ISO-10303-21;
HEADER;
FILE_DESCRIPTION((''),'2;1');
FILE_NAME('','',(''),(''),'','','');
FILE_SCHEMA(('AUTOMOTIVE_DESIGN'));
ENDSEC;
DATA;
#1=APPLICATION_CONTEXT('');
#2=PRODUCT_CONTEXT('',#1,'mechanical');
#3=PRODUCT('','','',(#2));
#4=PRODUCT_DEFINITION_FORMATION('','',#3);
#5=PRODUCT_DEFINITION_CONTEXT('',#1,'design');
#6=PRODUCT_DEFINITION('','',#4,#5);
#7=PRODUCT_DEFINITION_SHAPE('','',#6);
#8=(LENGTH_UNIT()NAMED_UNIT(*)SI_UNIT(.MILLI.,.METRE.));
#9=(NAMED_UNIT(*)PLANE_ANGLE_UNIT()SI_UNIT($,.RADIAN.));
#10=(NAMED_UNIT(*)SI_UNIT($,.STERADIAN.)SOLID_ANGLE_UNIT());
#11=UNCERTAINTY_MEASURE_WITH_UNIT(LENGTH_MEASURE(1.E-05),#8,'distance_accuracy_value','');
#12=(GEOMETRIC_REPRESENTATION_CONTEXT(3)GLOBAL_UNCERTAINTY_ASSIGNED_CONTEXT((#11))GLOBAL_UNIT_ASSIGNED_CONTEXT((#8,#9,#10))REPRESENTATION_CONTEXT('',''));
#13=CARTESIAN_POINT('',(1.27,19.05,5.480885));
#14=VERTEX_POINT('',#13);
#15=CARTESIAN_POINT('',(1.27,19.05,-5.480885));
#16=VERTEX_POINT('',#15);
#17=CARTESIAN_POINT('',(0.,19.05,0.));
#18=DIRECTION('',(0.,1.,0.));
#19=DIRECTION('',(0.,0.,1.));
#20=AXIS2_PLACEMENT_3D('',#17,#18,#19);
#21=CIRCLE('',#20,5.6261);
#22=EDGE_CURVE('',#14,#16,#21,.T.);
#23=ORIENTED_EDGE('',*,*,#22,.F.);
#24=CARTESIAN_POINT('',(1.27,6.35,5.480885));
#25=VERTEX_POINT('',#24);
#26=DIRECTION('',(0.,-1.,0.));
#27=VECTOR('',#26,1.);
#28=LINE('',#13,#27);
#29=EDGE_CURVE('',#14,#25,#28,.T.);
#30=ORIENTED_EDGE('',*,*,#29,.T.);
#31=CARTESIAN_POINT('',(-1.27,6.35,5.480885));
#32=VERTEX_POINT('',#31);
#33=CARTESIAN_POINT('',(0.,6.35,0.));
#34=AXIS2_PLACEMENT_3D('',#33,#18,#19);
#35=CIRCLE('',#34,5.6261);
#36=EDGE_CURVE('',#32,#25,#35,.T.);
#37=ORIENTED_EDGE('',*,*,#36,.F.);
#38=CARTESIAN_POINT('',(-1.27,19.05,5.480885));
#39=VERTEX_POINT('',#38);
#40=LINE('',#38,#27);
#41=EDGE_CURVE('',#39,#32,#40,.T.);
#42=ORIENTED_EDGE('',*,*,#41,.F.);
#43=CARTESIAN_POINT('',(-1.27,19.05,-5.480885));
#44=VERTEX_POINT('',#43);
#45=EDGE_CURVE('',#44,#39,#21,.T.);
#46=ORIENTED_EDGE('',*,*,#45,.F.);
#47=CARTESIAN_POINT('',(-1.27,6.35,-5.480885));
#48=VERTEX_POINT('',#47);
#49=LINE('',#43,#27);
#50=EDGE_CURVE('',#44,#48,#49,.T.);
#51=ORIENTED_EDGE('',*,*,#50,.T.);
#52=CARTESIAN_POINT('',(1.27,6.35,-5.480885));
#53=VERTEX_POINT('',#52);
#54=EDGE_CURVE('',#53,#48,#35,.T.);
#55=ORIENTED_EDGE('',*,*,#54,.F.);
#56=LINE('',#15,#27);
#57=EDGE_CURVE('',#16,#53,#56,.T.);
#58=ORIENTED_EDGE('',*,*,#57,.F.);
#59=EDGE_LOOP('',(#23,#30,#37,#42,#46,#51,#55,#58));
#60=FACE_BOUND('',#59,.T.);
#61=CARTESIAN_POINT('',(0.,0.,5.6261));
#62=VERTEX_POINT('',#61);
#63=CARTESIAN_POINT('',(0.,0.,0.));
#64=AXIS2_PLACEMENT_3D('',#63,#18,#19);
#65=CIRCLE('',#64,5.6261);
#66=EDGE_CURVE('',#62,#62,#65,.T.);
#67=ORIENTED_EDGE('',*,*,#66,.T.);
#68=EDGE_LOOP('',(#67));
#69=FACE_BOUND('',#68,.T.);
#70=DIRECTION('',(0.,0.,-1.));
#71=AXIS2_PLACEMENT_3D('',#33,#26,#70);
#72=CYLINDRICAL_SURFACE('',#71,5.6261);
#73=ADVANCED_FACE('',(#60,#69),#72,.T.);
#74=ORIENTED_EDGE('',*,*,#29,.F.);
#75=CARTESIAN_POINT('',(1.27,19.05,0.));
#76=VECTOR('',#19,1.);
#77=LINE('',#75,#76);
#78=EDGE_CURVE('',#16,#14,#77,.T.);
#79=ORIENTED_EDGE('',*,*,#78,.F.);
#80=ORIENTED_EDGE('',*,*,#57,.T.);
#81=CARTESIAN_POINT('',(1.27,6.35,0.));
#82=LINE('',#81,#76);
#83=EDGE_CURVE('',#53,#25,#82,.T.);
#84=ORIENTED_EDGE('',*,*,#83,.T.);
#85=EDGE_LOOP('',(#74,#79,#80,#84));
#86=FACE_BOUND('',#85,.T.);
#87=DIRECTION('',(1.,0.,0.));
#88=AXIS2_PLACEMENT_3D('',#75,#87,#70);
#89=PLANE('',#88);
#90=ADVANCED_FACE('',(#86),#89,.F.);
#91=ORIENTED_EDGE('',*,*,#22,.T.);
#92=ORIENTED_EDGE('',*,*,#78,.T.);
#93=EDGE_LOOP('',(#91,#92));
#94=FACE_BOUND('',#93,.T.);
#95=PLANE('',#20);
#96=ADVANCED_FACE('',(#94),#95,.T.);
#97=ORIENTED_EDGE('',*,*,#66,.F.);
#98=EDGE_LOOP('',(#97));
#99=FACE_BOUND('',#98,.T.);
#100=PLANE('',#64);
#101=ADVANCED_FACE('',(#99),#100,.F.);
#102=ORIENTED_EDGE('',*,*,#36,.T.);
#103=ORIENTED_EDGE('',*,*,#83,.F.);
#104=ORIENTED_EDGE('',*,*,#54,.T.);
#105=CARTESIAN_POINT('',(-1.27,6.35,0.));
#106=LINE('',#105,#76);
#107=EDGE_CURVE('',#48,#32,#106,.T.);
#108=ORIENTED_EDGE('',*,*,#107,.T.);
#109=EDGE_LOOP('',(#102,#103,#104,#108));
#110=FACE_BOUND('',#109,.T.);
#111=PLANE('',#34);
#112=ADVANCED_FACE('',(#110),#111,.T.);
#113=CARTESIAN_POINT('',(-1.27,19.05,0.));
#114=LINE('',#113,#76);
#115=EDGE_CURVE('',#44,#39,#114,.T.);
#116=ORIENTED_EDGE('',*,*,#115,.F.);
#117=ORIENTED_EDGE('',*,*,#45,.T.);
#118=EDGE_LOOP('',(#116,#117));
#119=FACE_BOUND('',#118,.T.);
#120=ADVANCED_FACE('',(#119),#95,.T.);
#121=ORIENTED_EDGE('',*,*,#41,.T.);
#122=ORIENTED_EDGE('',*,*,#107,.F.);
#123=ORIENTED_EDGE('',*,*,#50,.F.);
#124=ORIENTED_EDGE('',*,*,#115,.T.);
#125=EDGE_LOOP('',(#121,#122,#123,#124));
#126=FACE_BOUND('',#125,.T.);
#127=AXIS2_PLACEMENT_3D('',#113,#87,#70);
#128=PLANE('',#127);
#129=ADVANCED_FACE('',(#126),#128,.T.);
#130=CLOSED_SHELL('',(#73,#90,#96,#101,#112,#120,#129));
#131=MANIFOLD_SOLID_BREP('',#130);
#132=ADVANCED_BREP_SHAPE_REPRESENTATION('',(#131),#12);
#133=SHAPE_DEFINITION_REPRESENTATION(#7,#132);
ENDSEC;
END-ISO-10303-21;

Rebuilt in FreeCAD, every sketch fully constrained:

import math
import FreeCAD as App
import Part
import Sketcher

V = App.Vector
Q = App.Units.Quantity

doc = App.newDocument("Part")
params = doc.addObject("Spreadsheet::Sheet", "Params")
for row, (alias, value) in enumerate([
    ("pad1_length", "0.25 in"),
    ("pad2_length", "0.5 in"),
], start=1):
    params.set(f"A{row}", alias)
    params.set(f"B{row}", "=" + value)
    params.setAlias(f"B{row}", alias)

body = doc.addObject("PartDesign::Body", "Body")

# Sketch on XZ plane
sketch1 = body.newObject("Sketcher::SketchObject", "Sketch")
sketch1.AttachmentSupport = (doc.getObject("XZ_Plane"), [""])
sketch1.MapMode = "FlatFace"
sketch1.addGeometry([
    Part.ArcOfCircle(Part.Circle(V(0, 0, 0), V(0, 0, 1), 5.6261), math.radians(103.046022), math.radians(256.953978)),  # 0
    Part.ArcOfCircle(Part.Circle(V(0, 0, 0), V(0, 0, 1), 5.6261), math.radians(90), math.radians(103.046022)),  # 1
    Part.ArcOfCircle(Part.Circle(V(0, 0, 0), V(0, 0, 1), 5.6261), math.radians(76.953978), math.radians(90)),  # 2
    Part.ArcOfCircle(Part.Circle(V(0, 0, 0), V(0, 0, 1), 5.6261), math.radians(0), math.radians(76.953978)),  # 3
    Part.ArcOfCircle(Part.Circle(V(0, 0, 0), V(0, 0, 1), 5.6261), math.radians(-76.953978), math.radians(0)),  # 4
    Part.ArcOfCircle(Part.Circle(V(0, 0, 0), V(0, 0, 1), 5.6261), math.radians(-90), math.radians(-76.953978)),  # 5
    Part.ArcOfCircle(Part.Circle(V(0, 0, 0), V(0, 0, 1), 5.6261), math.radians(-103.046022), math.radians(-90)),  # 6
], False)
sketch1.addConstraint([
    Sketcher.Constraint("Tangent", 0, 1, 1, 2),
    Sketcher.Constraint("Tangent", 1, 1, 2, 2),
    Sketcher.Constraint("Tangent", 2, 1, 3, 2),
    Sketcher.Constraint("Tangent", 3, 1, 4, 2),
    Sketcher.Constraint("Tangent", 4, 1, 5, 2),
    Sketcher.Constraint("Tangent", 5, 1, 6, 2),
    Sketcher.Constraint("Tangent", 6, 1, 0, 2),
    Sketcher.Constraint("Coincident", 0, 3, -1, 1),
    Sketcher.Constraint("Coincident", 2, 3, -1, 1),
    Sketcher.Constraint("Coincident", 4, 3, -1, 1),
    Sketcher.Constraint("PointOnObject", 1, 1, -2),
    Sketcher.Constraint("PointOnObject", 3, 1, -1),
    Sketcher.Constraint("PointOnObject", 5, 1, -2),
    Sketcher.Constraint("Horizontal", 0, 1, 2, 1),
    Sketcher.Constraint("Horizontal", 4, 1, 6, 1),
    Sketcher.Constraint("Vertical", 2, 1, 4, 1),
    Sketcher.Constraint("Radius", 0, Q("0.2215 in")),
    Sketcher.Constraint("DistanceX", 0, 1, 2, 1, Q("0.1 in")),
])
pad1 = body.newObject("PartDesign::Pad", "Pad")
pad1.Profile = sketch1
pad1.setExpression("Length", "Params.pad1_length")
pad1.Reversed = True

# Sketch on XZ plane
sketch2 = body.newObject("Sketcher::SketchObject", "Sketch001")
sketch2.AttachmentSupport = (doc.getObject("XZ_Plane"), [""])
sketch2.MapMode = "FlatFace"
sketch2.AttachmentOffset = App.Placement(V(0, 0, -0.25 * 25.4), App.Rotation())
sketch2.addGeometry([
    Part.ArcOfCircle(Part.Circle(V(0, 0, 0), V(0, 0, 1), 5.6261), math.radians(103.046022), math.radians(256.953978)),  # 0
    Part.LineSegment(V(-1.27, 5.480885, 0), V(-1.27, -5.480885, 0)),  # 1
    Part.LineSegment(V(1.27, -5.480885, 0), V(1.27, 5.480885, 0)),  # 2
    Part.ArcOfCircle(Part.Circle(V(0, 0, 0), V(0, 0, 1), 5.6261), math.radians(0), math.radians(76.953978)),  # 3
    Part.ArcOfCircle(Part.Circle(V(0, 0, 0), V(0, 0, 1), 5.6261), math.radians(-76.953978), math.radians(0)),  # 4
], False)
sketch2.addConstraint([
    Sketcher.Constraint("Coincident", 0, 1, 1, 1),
    Sketcher.Constraint("Coincident", 1, 2, 0, 2),
    Sketcher.Constraint("Coincident", 2, 2, 3, 2),
    Sketcher.Constraint("Tangent", 3, 1, 4, 2),
    Sketcher.Constraint("Coincident", 4, 1, 2, 1),
    Sketcher.Constraint("Vertical", 1),
    Sketcher.Constraint("Vertical", 2),
    Sketcher.Constraint("Coincident", 0, 3, -1, 1),
    Sketcher.Constraint("Coincident", 3, 3, -1, 1),
    Sketcher.Constraint("Equal", 0, 3),
    Sketcher.Constraint("Equal", 3, 4),
    Sketcher.Constraint("PointOnObject", 3, 1, -1),
    Sketcher.Constraint("Horizontal", 0, 1, 2, 2),
    Sketcher.Constraint("Radius", 0, Q("0.2215 in")),
    Sketcher.Constraint("DistanceX", 0, 1, 2, 2, Q("0.1 in")),
])
pad2 = body.newObject("PartDesign::Pad", "Pad001")
pad2.Profile = sketch2
pad2.setExpression("Length", "Params.pad2_length")
pad2.Reversed = True

doc.recompute()
